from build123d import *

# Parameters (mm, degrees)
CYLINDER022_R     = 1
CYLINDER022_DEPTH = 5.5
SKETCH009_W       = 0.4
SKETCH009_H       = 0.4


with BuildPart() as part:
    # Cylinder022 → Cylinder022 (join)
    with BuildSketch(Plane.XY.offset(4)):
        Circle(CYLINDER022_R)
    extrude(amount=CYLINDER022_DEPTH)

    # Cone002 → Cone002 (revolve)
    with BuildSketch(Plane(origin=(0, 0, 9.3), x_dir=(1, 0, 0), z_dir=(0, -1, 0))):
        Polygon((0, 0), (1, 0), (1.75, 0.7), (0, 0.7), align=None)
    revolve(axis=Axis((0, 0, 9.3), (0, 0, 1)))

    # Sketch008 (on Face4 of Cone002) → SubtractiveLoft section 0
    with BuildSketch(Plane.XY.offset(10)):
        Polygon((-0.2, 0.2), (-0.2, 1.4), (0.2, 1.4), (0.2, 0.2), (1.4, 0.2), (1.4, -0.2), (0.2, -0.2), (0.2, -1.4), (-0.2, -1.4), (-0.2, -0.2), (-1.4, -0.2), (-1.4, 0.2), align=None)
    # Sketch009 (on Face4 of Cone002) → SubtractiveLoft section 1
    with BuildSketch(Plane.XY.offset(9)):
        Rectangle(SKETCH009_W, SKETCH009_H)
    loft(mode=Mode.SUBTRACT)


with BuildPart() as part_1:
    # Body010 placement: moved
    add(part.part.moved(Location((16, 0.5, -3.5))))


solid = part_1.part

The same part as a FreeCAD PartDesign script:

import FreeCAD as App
import Part
import Sketcher
from FreeCAD import Vector

doc = App.newDocument("Part")
body = doc.addObject("PartDesign::Body", "Body")

sketch1 = body.newObject("Sketcher::SketchObject", "Sketch")
sketch1.AttachmentSupport = (doc.getObject("XY_Plane"), [""])
sketch1.MapMode = "FlatFace"
sketch1.AttachmentOffset = App.Placement(Vector(0, 0, 4), App.Rotation())
sketch1.addGeometry(Part.Circle(Vector(0, 0, 0), Vector(0, 0, 1), 1), False)
sketch1.addConstraint(Sketcher.Constraint("Coincident", 0, 3, -1, 1))
sketch1.addConstraint(Sketcher.Constraint("Diameter", 0, 2.0))
pad1 = body.newObject("PartDesign::Pad", "Pad")
pad1.Profile = sketch1
pad1.Length = 5.5

sketch2 = body.newObject("Sketcher::SketchObject", "Sketch001")
sketch2.AttachmentSupport = (doc.getObject("XZ_Plane"), [""])
sketch2.MapMode = "FlatFace"
sketch2.addGeometry(Part.LineSegment(Vector(0, 9.3, 0), Vector(1, 9.3, 0)), False)
sketch2.addGeometry(Part.LineSegment(Vector(1, 9.3, 0), Vector(1.8, 10, 0)), False)
sketch2.addGeometry(Part.LineSegment(Vector(1.8, 10, 0), Vector(0, 10, 0)), False)
sketch2.addGeometry(Part.LineSegment(Vector(0, 10, 0), Vector(0, 9.3, 0)), False)
sketch2.addConstraint(Sketcher.Constraint("Coincident", 0, 2, 1, 1))
sketch2.addConstraint(Sketcher.Constraint("Coincident", 1, 2, 2, 1))
sketch2.addConstraint(Sketcher.Constraint("Coincident", 2, 2, 3, 1))
sketch2.addConstraint(Sketcher.Constraint("Coincident", 3, 2, 0, 1))
sketch2.addConstraint(Sketcher.Constraint("Horizontal", 0))
sketch2.addConstraint(Sketcher.Constraint("Horizontal", 2))
sketch2.addConstraint(Sketcher.Constraint("Vertical", 3))
sketch2.addConstraint(Sketcher.Constraint("PointOnObject", 2, 2, -2))
sketch2.addConstraint(Sketcher.Constraint("DistanceX", 0, 1, 0, 2, 1.0))
sketch2.addConstraint(Sketcher.Constraint("DistanceY", 3, 2, 3, 1, 0.7))
sketch2.addConstraint(Sketcher.Constraint("DistanceY", -1, 1, 1, 2, 10.0))
sketch2.addConstraint(Sketcher.Constraint("DistanceX", 2, 2, 2, 1, 1.75))
revolution = body.newObject("PartDesign::Revolution", "Revolution")
revolution.Profile = sketch2
revolution.ReferenceAxis = (sketch2, ["V_Axis"])
revolution.Angle = 360

sketch3 = body.newObject("Sketcher::SketchObject", "Sketch002")
sketch3.AttachmentSupport = (doc.getObject("XY_Plane"), [""])
sketch3.MapMode = "FlatFace"
sketch3.AttachmentOffset = App.Placement(Vector(0, 0, 10), App.Rotation())
sketch3.addGeometry(Part.LineSegment(Vector(-0.2, 1.4, 0), Vector(-0.2, 0.2, 0)), False)
sketch3.addGeometry(Part.LineSegment(Vector(-0.2, 0.2, 0), Vector(-1.4, 0.2, 0)), False)
sketch3.addGeometry(Part.LineSegment(Vector(-1.4, 0.2, 0), Vector(-1.4, -0.2, 0)), False)
sketch3.addGeometry(Part.LineSegment(Vector(-1.4, -0.2, 0), Vector(-0.2, -0.2, 0)), False)
sketch3.addGeometry(Part.LineSegment(Vector(-0.2, -0.2, 0), Vector(-0.2, -1.4, 0)), False)
sketch3.addGeometry(Part.LineSegment(Vector(-0.2, -1.4, 0), Vector(0.2, -1.4, 0)), False)
sketch3.addGeometry(Part.LineSegment(Vector(0.2, -1.4, 0), Vector(0.2, -0.2, 0)), False)
sketch3.addGeometry(Part.LineSegment(Vector(0.2, -0.2, 0), Vector(1.4, -0.2, 0)), False)
sketch3.addGeometry(Part.LineSegment(Vector(1.4, -0.2, 0), Vector(1.4, 0.2, 0)), False)
sketch3.addGeometry(Part.LineSegment(Vector(1.4, 0.2, 0), Vector(0.2, 0.2, 0)), False)
sketch3.addGeometry(Part.LineSegment(Vector(0.2, 0.2, 0), Vector(0.2, 1.4, 0)), False)
sketch3.addGeometry(Part.LineSegment(Vector(0.2, 1.4, 0), Vector(-0.2, 1.4, 0)), False)
sketch3.addConstraint(Sketcher.Constraint("Coincident", 0, 2, 1, 1))
sketch3.addConstraint(Sketcher.Constraint("Coincident", 1, 2, 2, 1))
sketch3.addConstraint(Sketcher.Constraint("Coincident", 2, 2, 3, 1))
sketch3.addConstraint(Sketcher.Constraint("Coincident", 3, 2, 4, 1))
sketch3.addConstraint(Sketcher.Constraint("Coincident", 4, 2, 5, 1))
sketch3.addConstraint(Sketcher.Constraint("Coincident", 5, 2, 6, 1))
sketch3.addConstraint(Sketcher.Constraint("Coincident", 6, 2, 7, 1))
sketch3.addConstraint(Sketcher.Constraint("Coincident", 7, 2, 8, 1))
sketch3.addConstraint(Sketcher.Constraint("Coincident", 8, 2, 9, 1))
sketch3.addConstraint(Sketcher.Constraint("Coincident", 9, 2, 10, 1))
sketch3.addConstraint(Sketcher.Constraint("Coincident", 10, 2, 11, 1))
sketch3.addConstraint(Sketcher.Constraint("Coincident", 11, 2, 0, 1))
sketch3.addConstraint(Sketcher.Constraint("Vertical", 0))
sketch3.addConstraint(Sketcher.Constraint("Horizontal", 1))
sketch3.addConstraint(Sketcher.Constraint("Vertical", 2))
sketch3.addConstraint(Sketcher.Constraint("Horizontal", 3))
sketch3.addConstraint(Sketcher.Constraint("Vertical", 4))
sketch3.addConstraint(Sketcher.Constraint("Horizontal", 5))
sketch3.addConstraint(Sketcher.Constraint("Vertical", 6))
sketch3.addConstraint(Sketcher.Constraint("Horizontal", 7))
sketch3.addConstraint(Sketcher.Constraint("Vertical", 8))
sketch3.addConstraint(Sketcher.Constraint("Horizontal", 9))
sketch3.addConstraint(Sketcher.Constraint("Vertical", 10))
sketch3.addConstraint(Sketcher.Constraint("Horizontal", 11))
sketch3.addConstraint(Sketcher.Constraint("Symmetric", 0, 2, 6, 2, -1, 1))
sketch3.addConstraint(Sketcher.Constraint("Symmetric", 2, 2, 8, 2, -1, 1))
sketch3.addConstraint(Sketcher.Constraint("Symmetric", 4, 2, 10, 2, -1, 1))
sketch3.addConstraint(Sketcher.Constraint("Symmetric", 3, 2, 6, 2, -2))
sketch3.addConstraint(Sketcher.Constraint("Equal", 9, 0))
sketch3.addConstraint(Sketcher.Constraint("Equal", 11, 2))
sketch3.addConstraint(Sketcher.Constraint("DistanceX", 1, 2, 1, 1, 1.2))
sketch3.addConstraint(Sketcher.Constraint("DistanceX", 5, 1, 5, 2, 0.4))

sketch4 = body.newObject("Sketcher::SketchObject", "Sketch003")
sketch4.AttachmentSupport = (doc.getObject("XY_Plane"), [""])
sketch4.MapMode = "FlatFace"
sketch4.AttachmentOffset = App.Placement(Vector(0, 0, 9), App.Rotation())
sketch4.addGeometry(Part.LineSegment(Vector(-0.2, 0.2, 0), Vector(-0.2, -0.2, 0)), False)
sketch4.addGeometry(Part.LineSegment(Vector(-0.2, -0.2, 0), Vector(0.2, -0.2, 0)), False)
sketch4.addGeometry(Part.LineSegment(Vector(0.2, -0.2, 0), Vector(0.2, 0.2, 0)), False)
sketch4.addGeometry(Part.LineSegment(Vector(0.2, 0.2, 0), Vector(-0.2, 0.2, 0)), False)
sketch4.addConstraint(Sketcher.Constraint("Coincident", 0, 2, 1, 1))
sketch4.addConstraint(Sketcher.Constraint("Coincident", 1, 2, 2, 1))
sketch4.addConstraint(Sketcher.Constraint("Coincident", 2, 2, 3, 1))
sketch4.addConstraint(Sketcher.Constraint("Coincident", 3, 2, 0, 1))
sketch4.addConstraint(Sketcher.Constraint("Vertical", 0))
sketch4.addConstraint(Sketcher.Constraint("Horizontal", 1))
sketch4.addConstraint(Sketcher.Constraint("Vertical", 2))
sketch4.addConstraint(Sketcher.Constraint("Horizontal", 3))
sketch4.addConstraint(Sketcher.Constraint("Symmetric", 0, 2, 2, 2, -1, 1))
sketch4.addConstraint(Sketcher.Constraint("Equal", 3, 0))
sketch4.addConstraint(Sketcher.Constraint("DistanceX", 1, 1, 1, 2, 0.4))

subtractiveloft = body.newObject("PartDesign::SubtractiveLoft", "SubtractiveLoft")
subtractiveloft.Profile = sketch3
subtractiveloft.Sections = [sketch4]
body2 = doc.addObject("PartDesign::Body", "Body001")
doc.recompute()

body.Placement = App.Placement(Vector(16, 0.5, -3.5), App.Rotation(Vector(0, 0, 1), 0))
boolean = body2.newObject("PartDesign::Boolean", "Boolean")
boolean.Type = "Fuse"
boolean.addObjects([body])

doc.recompute()
